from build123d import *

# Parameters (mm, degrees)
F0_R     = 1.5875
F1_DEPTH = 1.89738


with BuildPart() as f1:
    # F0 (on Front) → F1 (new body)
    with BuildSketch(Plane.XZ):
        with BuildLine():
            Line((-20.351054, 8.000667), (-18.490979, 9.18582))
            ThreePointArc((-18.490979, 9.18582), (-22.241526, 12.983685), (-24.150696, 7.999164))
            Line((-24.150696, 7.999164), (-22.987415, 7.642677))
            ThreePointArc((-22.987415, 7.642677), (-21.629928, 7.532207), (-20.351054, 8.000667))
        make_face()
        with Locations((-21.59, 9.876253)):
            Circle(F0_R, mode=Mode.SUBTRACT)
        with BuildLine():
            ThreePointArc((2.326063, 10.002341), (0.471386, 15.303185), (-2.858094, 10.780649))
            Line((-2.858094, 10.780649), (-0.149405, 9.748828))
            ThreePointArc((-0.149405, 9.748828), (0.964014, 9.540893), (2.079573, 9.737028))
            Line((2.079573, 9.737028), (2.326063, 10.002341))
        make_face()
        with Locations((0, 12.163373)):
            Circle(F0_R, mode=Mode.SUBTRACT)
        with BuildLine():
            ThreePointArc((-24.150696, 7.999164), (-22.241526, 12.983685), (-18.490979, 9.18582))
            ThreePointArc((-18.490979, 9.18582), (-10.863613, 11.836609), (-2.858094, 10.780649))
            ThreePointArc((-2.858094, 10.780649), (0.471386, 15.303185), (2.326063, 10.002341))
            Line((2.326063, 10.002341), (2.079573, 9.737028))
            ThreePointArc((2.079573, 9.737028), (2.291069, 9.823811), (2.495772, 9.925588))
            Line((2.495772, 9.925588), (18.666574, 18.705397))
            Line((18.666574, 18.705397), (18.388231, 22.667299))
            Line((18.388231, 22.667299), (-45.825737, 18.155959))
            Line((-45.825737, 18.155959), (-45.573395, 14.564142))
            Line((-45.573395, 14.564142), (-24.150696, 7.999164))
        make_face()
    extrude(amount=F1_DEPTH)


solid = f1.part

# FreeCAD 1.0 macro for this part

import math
import FreeCAD as App
import Part
import Sketcher

V = App.Vector
Q = App.Units.Quantity

doc = App.newDocument("Part")
params = doc.addObject("Spreadsheet::Sheet", "Params")
for row, (alias, value) in enumerate([
    ("sketch1_diameter", "0.125 in"),
    ("sketch1_diameter2", "0.125 in"),
    ("sketch1_radius", "0.125 in"),
    ("sketch1_radius2", "0.1250002 in"),
    ("pad1_length", "0.0747 in"),
], start=1):
    params.set(f"A{row}", alias)
    params.set(f"B{row}", "=" + value)
    params.setAlias(f"B{row}", alias)

body = doc.addObject("PartDesign::Body", "Body")

sketch1 = body.newObject("Sketcher::SketchObject", "Sketch")
sketch1.AttachmentSupport = (doc.getObject("XZ_Plane"), [""])
sketch1.MapMode = "FlatFace"
sketch1.addGeometry([
    Part.LineSegment(V(-20.351054, 8.000667, 0), V(-18.490979, 9.18582, 0)),
    Part.ArcOfCircle(Part.Circle(V(-9.087562, -5.572655, 0), V(0, 0, 1), 17.499624), math.radians(69.146648), math.radians(122.5034)),
    Part.LineSegment(V(-2.858094, 10.780649, 0), V(-0.149405, 9.748828, 0)),
    Part.ArcOfCircle(Part.Circle(V(0.980822, 12.715847, 0), V(0, 0, 1), 3.174999), math.radians(-110.853349), math.radians(-69.753283)),
    Part.ArcOfCircle(Part.Circle(V(0.98087, 12.715747, 0), V(0, 0, 1), 3.174888), math.radians(-69.753465), math.radians(-61.50049)),
    Part.LineSegment(V(2.495772, 9.925588, 0), V(18.666574, 18.705397, 0)),
    Part.LineSegment(V(18.666574, 18.705397, 0), V(18.388231, 22.667299, 0)),
    Part.LineSegment(V(18.388231, 22.667299, 0), V(-45.825737, 18.155959, 0)),
    Part.LineSegment(V(-45.825737, 18.155959, 0), V(-45.573395, 14.564142, 0)),
    Part.LineSegment(V(-45.573395, 14.564142, 0), V(-24.150696, 7.999164, 0)),
    Part.LineSegment(V(-24.150696, 7.999164, 0), V(-22.987415, 7.642677, 0)),
    Part.ArcOfCircle(Part.Circle(V(-22.05714, 10.678338, 0), V(0, 0, 1), 3.175004), math.radians(-107.037633), math.radians(-57.496636)),
    Part.Circle(V(-21.59, 9.876253, 0), V(0, 0, 1), 1.5875),
    Part.Circle(V(0, 12.163373, 0), V(0, 0, 1), 1.5875),
], False)
sketch1.addConstraint([
    Sketcher.Constraint("Coincident", 0, 2, 1, 2),
    Sketcher.Constraint("Coincident", 1, 1, 2, 1),
    Sketcher.Constraint("Coincident", 2, 2, 3, 1),
    Sketcher.Constraint("Coincident", 3, 2, 4, 1),
    Sketcher.Constraint("Coincident", 4, 2, 5, 1),
    Sketcher.Constraint("Coincident", 5, 2, 6, 1),
    Sketcher.Constraint("Coincident", 6, 2, 7, 1),
    Sketcher.Constraint("Coincident", 7, 2, 8, 1),
    Sketcher.Constraint("Coincident", 8, 2, 9, 1),
    Sketcher.Constraint("Coincident", 9, 2, 10, 1),
    Sketcher.Constraint("Coincident", 10, 2, 11, 1),
    Sketcher.Constraint("Coincident", 11, 2, 0, 1),
    Sketcher.Constraint("PointOnObject", 13, 3, -2),
    Sketcher.Constraint("Diameter", 12, Q("0.125 in")),
    Sketcher.Constraint("Diameter", 13, Q("0.125 in")),
    Sketcher.Constraint("Radius", 3, Q("0.125 in")),
    Sketcher.Constraint("Radius", 11, Q("0.1250002 in")),
    Sketcher.Constraint("DistanceX", 12, 3, -1, 1, Q("0.85 in")),
    Sketcher.Constraint("Radius", 1, Q("17.499624 mm")),
    Sketcher.Constraint("Radius", 4, Q("3.174888 mm")),
    Sketcher.Constraint("DistanceX", 11, 3, 0, 2, Q("0.1404 in")),
    Sketcher.Constraint("DistanceY", -1, 1, 6, 2, Q("22.667299 mm")),
    Sketcher.Constraint("DistanceY", 4, 3, 3, 3, Q("0.000101 mm")),
    Sketcher.Constraint("DistanceY", 1, 3, 4, 3, Q("18.288401 mm")),
    Sketcher.Constraint("DistanceX", 0, 2, 3, 3, Q("19.471801 mm")),
    Sketcher.Constraint("DistanceY", 1, 1, 3, 3, Q("1.935198 mm")),
    Sketcher.Constraint("DistanceY", 3, 2, 2, 2, Q("0.0118 mm")),
    Sketcher.Constraint("DistanceX", 3, 2, 4, 2, Q("0.416199 mm")),
    Sketcher.Constraint("DistanceX", 4, 3, 4, 2, Q("1.514902 mm")),
    Sketcher.Constraint("DistanceX", 3, 2, 5, 2, Q("16.587001 mm")),
    Sketcher.Constraint("DistanceY", 5, 2, 6, 2, Q("3.961902 mm")),
    Sketcher.Constraint("Distance", 2, Q("2.89856 mm")),
    Sketcher.Constraint("Distance", 5, Q("18.40054 mm")),
    Sketcher.Constraint("Distance", 8, Q("3.60067 mm")),
    Sketcher.Constraint("Distance", 10, Q("1.216678 mm")),
    Sketcher.Constraint("DistanceX", -1, 1, 4, 3, Q("0.98087 mm")),
    Sketcher.Constraint("DistanceY", -1, 1, 11, 3, Q("10.678338 mm")),
    Sketcher.Constraint("DistanceX", -1, 1, 6, 2, Q("18.388231 mm")),
    Sketcher.Constraint("DistanceY", -1, 1, 7, 2, Q("18.155959 mm")),
    Sketcher.Constraint("DistanceY", 12, 3, 13, 3, Q("2.28712 mm")),
    Sketcher.Constraint("DistanceX", 7, 2, 8, 2, Q("0.252342 mm")),
    Sketcher.Constraint("DistanceY", 12, 3, 8, 2, Q("4.687889 mm")),
    Sketcher.Constraint("DistanceY", 9, 2, 12, 3, Q("1.877089 mm")),
    Sketcher.Constraint("DistanceX", 9, 2, 10, 2, Q("1.163281 mm")),
    Sketcher.Constraint("DistanceX", 10, 2, 11, 2, Q("2.636361 mm")),
    Sketcher.Constraint("Distance", 7, Q("64.372245 mm")),
])
sketch1.setExpression("Constraints[13]", "Params.sketch1_diameter")
sketch1.setExpression("Constraints[14]", "Params.sketch1_diameter2")
sketch1.setExpression("Constraints[15]", "Params.sketch1_radius")
sketch1.setExpression("Constraints[16]", "Params.sketch1_radius2")
pad1 = body.newObject("PartDesign::Pad", "Pad")
pad1.Profile = sketch1
pad1.setExpression("Length", "Params.pad1_length")

doc.recompute()
